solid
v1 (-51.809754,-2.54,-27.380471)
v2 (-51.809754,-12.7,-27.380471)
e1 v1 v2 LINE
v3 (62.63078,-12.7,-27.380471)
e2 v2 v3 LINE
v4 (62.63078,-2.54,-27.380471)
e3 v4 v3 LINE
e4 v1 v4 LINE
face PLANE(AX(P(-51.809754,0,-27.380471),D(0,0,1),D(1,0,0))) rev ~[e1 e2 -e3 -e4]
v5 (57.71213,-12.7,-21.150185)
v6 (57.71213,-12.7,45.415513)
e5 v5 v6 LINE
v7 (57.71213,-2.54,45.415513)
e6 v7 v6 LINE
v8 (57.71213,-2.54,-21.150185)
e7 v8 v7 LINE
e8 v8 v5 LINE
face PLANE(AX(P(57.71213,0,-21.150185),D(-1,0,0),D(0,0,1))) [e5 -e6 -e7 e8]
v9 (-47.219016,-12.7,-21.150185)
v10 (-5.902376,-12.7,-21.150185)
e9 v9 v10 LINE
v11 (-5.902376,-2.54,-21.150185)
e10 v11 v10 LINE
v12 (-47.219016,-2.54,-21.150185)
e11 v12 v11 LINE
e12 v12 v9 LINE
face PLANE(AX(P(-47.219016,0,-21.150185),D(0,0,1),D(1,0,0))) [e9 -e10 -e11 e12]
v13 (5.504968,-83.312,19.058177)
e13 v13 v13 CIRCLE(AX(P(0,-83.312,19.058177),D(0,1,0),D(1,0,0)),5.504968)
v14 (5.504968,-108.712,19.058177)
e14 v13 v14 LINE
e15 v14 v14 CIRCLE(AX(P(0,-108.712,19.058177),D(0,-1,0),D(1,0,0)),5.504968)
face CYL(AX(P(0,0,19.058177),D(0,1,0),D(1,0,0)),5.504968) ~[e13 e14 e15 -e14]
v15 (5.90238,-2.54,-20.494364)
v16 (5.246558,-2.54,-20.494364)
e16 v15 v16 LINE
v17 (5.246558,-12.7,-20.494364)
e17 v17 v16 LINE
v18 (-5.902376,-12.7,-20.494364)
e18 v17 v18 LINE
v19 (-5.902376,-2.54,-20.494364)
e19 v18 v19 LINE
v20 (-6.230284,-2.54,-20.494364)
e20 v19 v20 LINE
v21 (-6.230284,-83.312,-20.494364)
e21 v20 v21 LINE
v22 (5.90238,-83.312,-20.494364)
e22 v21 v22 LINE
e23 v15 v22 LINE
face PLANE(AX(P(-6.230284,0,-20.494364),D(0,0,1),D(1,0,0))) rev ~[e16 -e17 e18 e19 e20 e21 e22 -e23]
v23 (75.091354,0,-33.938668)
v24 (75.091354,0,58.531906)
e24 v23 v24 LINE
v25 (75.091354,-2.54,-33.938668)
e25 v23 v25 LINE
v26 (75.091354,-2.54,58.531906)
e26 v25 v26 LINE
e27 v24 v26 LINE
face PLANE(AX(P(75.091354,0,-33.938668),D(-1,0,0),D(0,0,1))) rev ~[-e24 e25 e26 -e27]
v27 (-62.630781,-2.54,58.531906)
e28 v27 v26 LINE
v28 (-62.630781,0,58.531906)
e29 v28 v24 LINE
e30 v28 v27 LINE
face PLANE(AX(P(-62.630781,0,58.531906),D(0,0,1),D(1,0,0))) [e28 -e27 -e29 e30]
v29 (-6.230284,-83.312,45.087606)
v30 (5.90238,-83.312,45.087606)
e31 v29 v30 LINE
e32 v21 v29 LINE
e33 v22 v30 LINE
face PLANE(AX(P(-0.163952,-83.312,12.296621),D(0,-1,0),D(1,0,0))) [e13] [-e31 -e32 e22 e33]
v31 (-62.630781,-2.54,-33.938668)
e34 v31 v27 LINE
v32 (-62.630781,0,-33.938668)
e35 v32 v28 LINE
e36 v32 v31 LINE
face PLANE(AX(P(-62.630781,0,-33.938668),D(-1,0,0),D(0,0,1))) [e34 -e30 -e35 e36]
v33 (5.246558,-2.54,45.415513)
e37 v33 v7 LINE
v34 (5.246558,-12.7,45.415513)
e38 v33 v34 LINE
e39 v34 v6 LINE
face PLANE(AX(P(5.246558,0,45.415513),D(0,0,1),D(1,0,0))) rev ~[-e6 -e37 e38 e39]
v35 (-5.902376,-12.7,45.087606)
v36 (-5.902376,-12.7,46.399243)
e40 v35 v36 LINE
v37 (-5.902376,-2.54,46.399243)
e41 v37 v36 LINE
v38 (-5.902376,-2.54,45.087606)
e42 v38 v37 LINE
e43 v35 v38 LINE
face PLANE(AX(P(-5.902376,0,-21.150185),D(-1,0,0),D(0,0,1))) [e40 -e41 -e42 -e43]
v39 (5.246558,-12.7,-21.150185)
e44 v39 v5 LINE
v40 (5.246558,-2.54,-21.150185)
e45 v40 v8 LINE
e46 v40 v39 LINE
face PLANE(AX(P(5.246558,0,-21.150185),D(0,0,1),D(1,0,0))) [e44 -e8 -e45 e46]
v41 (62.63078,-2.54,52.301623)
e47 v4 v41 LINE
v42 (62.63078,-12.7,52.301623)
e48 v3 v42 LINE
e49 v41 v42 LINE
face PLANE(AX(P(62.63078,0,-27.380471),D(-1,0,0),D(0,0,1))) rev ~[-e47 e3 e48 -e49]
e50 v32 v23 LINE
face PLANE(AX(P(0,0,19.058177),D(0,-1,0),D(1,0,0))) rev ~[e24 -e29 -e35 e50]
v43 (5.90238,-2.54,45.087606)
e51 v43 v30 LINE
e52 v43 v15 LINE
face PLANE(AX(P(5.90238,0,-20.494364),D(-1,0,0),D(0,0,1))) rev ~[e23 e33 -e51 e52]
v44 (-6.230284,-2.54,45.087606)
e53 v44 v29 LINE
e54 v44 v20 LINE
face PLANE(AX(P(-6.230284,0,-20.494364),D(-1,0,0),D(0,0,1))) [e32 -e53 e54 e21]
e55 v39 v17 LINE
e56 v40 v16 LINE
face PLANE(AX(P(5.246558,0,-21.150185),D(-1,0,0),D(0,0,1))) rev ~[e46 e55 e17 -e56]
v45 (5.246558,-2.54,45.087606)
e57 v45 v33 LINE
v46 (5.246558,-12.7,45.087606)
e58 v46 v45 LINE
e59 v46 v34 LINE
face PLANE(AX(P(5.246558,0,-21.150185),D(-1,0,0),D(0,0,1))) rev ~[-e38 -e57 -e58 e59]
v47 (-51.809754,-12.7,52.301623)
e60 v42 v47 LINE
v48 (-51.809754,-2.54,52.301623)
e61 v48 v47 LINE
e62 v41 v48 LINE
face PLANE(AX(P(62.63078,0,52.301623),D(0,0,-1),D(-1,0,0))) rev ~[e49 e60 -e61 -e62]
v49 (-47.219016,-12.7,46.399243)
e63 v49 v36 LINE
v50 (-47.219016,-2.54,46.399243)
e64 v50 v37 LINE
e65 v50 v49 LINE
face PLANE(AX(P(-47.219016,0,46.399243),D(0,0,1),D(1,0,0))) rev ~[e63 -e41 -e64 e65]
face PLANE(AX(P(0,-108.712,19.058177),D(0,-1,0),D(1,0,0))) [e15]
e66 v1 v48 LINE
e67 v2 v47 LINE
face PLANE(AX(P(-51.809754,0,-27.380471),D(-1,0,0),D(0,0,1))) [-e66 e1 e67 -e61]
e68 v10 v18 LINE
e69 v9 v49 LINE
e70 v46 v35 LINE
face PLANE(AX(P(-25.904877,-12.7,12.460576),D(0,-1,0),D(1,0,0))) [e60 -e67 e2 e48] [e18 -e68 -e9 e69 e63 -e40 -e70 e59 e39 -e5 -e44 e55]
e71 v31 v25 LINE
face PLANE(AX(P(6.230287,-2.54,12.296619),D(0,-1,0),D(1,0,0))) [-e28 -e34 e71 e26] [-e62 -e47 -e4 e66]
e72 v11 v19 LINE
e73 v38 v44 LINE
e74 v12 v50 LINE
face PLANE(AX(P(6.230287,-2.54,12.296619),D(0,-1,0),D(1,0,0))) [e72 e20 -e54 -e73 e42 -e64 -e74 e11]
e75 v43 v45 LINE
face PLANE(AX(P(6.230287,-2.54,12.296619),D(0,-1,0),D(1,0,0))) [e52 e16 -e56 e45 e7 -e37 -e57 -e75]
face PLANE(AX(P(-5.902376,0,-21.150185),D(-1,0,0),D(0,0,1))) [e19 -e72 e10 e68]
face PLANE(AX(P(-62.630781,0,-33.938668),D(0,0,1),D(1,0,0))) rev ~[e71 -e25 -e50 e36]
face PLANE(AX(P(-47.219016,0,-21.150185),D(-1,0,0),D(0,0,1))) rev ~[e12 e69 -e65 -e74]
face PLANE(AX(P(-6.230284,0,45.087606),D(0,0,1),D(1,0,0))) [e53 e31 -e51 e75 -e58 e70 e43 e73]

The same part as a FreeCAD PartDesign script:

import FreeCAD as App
import Part
import Sketcher

V = App.Vector
Q = App.Units.Quantity

doc = App.newDocument("Part")
body = doc.addObject("PartDesign::Body", "Body")

# Sketch on XZ plane
sketch1 = doc.addObject("Sketcher::SketchObject", "Sketch")
body.addObject(sketch1)
sketch1.AttachmentSupport = (doc.XZ_Plane, [""])
sketch1.MapMode = "FlatFace"
sketch1.addGeometry(Part.LineSegment(V(-52, 52, 0), V(-52, -27, 0)), False)
sketch1.addGeometry(Part.LineSegment(V(-52, -27, 0), V(63, -27, 0)), False)
sketch1.addGeometry(Part.LineSegment(V(63, -27, 0), V(63, 52, 0)), False)
sketch1.addGeometry(Part.LineSegment(V(63, 52, 0), V(-52, 52, 0)), False)
sketch1.addGeometry(Part.LineSegment(V(58, -21, 0), V(5, -21, 0)), False)
sketch1.addGeometry(Part.LineSegment(V(5, -21, 0), V(5, 45, 0)), False)
sketch1.addGeometry(Part.LineSegment(V(5, 45, 0), V(58, 45, 0)), False)
sketch1.addGeometry(Part.LineSegment(V(58, 45, 0), V(58, -21, 0)), False)
sketch1.addGeometry(Part.LineSegment(V(-6, -21, 0), V(-47, -21, 0)), False)
sketch1.addGeometry(Part.LineSegment(V(-47, -21, 0), V(-47, 46, 0)), False)
sketch1.addGeometry(Part.LineSegment(V(-47, 46, 0), V(-6, 46, 0)), False)
sketch1.addGeometry(Part.LineSegment(V(-6, 46, 0), V(-6, -21, 0)), False)
sketch1.addConstraint(Sketcher.Constraint("Coincident", 0, 2, 1, 1))
sketch1.addConstraint(Sketcher.Constraint("Coincident", 1, 2, 2, 1))
sketch1.addConstraint(Sketcher.Constraint("Coincident", 2, 2, 3, 1))
sketch1.addConstraint(Sketcher.Constraint("Coincident", 3, 2, 0, 1))
sketch1.addConstraint(Sketcher.Constraint("Coincident", 4, 2, 5, 1))
sketch1.addConstraint(Sketcher.Constraint("Coincident", 5, 2, 6, 1))
sketch1.addConstraint(Sketcher.Constraint("Coincident", 6, 2, 7, 1))
sketch1.addConstraint(Sketcher.Constraint("Coincident", 7, 2, 4, 1))
sketch1.addConstraint(Sketcher.Constraint("Coincident", 8, 2, 9, 1))
sketch1.addConstraint(Sketcher.Constraint("Coincident", 9, 2, 10, 1))
sketch1.addConstraint(Sketcher.Constraint("Coincident", 10, 2, 11, 1))
sketch1.addConstraint(Sketcher.Constraint("Coincident", 11, 2, 8, 1))
sketch1.addConstraint(Sketcher.Constraint("Vertical", 0))
sketch1.addConstraint(Sketcher.Constraint("Horizontal", 1))
sketch1.addConstraint(Sketcher.Constraint("Vertical", 2))
sketch1.addConstraint(Sketcher.Constraint("Horizontal", 3))
sketch1.addConstraint(Sketcher.Constraint("Horizontal", 4))
sketch1.addConstraint(Sketcher.Constraint("Vertical", 5))
sketch1.addConstraint(Sketcher.Constraint("Horizontal", 6))
sketch1.addConstraint(Sketcher.Constraint("Vertical", 7))
sketch1.addConstraint(Sketcher.Constraint("Horizontal", 8))
sketch1.addConstraint(Sketcher.Constraint("Vertical", 9))
sketch1.addConstraint(Sketcher.Constraint("Horizontal", 10))
sketch1.addConstraint(Sketcher.Constraint("Vertical", 11))
sketch1.addConstraint(Sketcher.Constraint("Horizontal", 7, 2, 8, 2))
sketch1.addConstraint(Sketcher.Constraint("DistanceX", 4, 2, 4, 1, 52.465571))
sketch1.addConstraint(Sketcher.Constraint("DistanceX", 8, 2, 8, 1, 41.31664))
sketch1.addConstraint(Sketcher.Constraint("DistanceY", 9, 1, 9, 2, 67.549428))
sketch1.addConstraint(Sketcher.Constraint("DistanceX", 1, 1, 1, 2, 114.440534))
sketch1.addConstraint(Sketcher.Constraint("DistanceY", 0, 2, 0, 1, 79.682095))
sketch1.addConstraint(Sketcher.Constraint("DistanceY", 5, 1, 5, 2, 66.565698))
sketch1.addConstraint(Sketcher.Constraint("DistanceY", 0, 2, -1, 1, 27.380471))
sketch1.addConstraint(Sketcher.Constraint("DistanceX", -1, 1, 1, 2, 62.63078))
sketch1.addConstraint(Sketcher.Constraint("DistanceX", -1, 1, 4, 2, 5.246558))
sketch1.addConstraint(Sketcher.Constraint("DistanceY", 4, 2, 3, 2, 73.451808))
sketch1.addConstraint(Sketcher.Constraint("DistanceX", 8, 2, -1, 1, 47.219016))
pad1 = doc.addObject("PartDesign::Pad", "Pad")
body.addObject(pad1)
pad1.Profile = sketch1
pad1.Length = Q("0.5 in")

# Sketch on XZ plane
sketch2 = doc.addObject("Sketcher::SketchObject", "Sketch001")
body.addObject(sketch2)
sketch2.AttachmentSupport = (doc.XZ_Plane, [""])
sketch2.MapMode = "FlatFace"
sketch2.addGeometry(Part.LineSegment(V(-63, 59, 0), V(-63, -34, 0)), False)
sketch2.addGeometry(Part.LineSegment(V(-63, -34, 0), V(75, -34, 0)), False)
sketch2.addGeometry(Part.LineSegment(V(75, -34, 0), V(75, 59, 0)), False)
sketch2.addGeometry(Part.LineSegment(V(75, 59, 0), V(-63, 59, 0)), False)
sketch2.addConstraint(Sketcher.Constraint("Coincident", 0, 2, 1, 1))
sketch2.addConstraint(Sketcher.Constraint("Coincident", 1, 2, 2, 1))
sketch2.addConstraint(Sketcher.Constraint("Coincident", 2, 2, 3, 1))
sketch2.addConstraint(Sketcher.Constraint("Coincident", 3, 2, 0, 1))
sketch2.addConstraint(Sketcher.Constraint("Vertical", 0))
sketch2.addConstraint(Sketcher.Constraint("Horizontal", 1))
sketch2.addConstraint(Sketcher.Constraint("Vertical", 2))
sketch2.addConstraint(Sketcher.Constraint("Horizontal", 3))
sketch2.addConstraint(Sketcher.Constraint("DistanceX", 1, 1, 1, 2, 137.722135))
sketch2.addConstraint(Sketcher.Constraint("DistanceY", 0, 2, 0, 1, 92.470575))
sketch2.addConstraint(Sketcher.Constraint("DistanceX", 0, 2, -1, 1, 62.630781))
sketch2.addConstraint(Sketcher.Constraint("DistanceY", 0, 2, -1, 1, 33.938668))
pad2 = doc.addObject("PartDesign::Pad", "Pad001")
body.addObject(pad2)
pad2.Profile = sketch2
pad2.Length = Q("0.1 in")

# Sketch on XZ plane
sketch3 = doc.addObject("Sketcher::SketchObject", "Sketch002")
body.addObject(sketch3)
sketch3.AttachmentSupport = (doc.XZ_Plane, [""])
sketch3.MapMode = "FlatFace"
sketch3.addGeometry(Part.LineSegment(V(-6, 45, 0), V(-6, -20, 0)), False)
sketch3.addGeometry(Part.LineSegment(V(-6, -20, 0), V(6, -20, 0)), False)
sketch3.addGeometry(Part.LineSegment(V(6, -20, 0), V(6, 45, 0)), False)
sketch3.addGeometry(Part.LineSegment(V(6, 45, 0), V(-6, 45, 0)), False)
sketch3.addConstraint(Sketcher.Constraint("Coincident", 0, 2, 1, 1))
sketch3.addConstraint(Sketcher.Constraint("Coincident", 1, 2, 2, 1))
sketch3.addConstraint(Sketcher.Constraint("Coincident", 2, 2, 3, 1))
sketch3.addConstraint(Sketcher.Constraint("Coincident", 3, 2, 0, 1))
sketch3.addConstraint(Sketcher.Constraint("Vertical", 0))
sketch3.addConstraint(Sketcher.Constraint("Horizontal", 1))
sketch3.addConstraint(Sketcher.Constraint("Vertical", 2))
sketch3.addConstraint(Sketcher.Constraint("Horizontal", 3))
sketch3.addConstraint(Sketcher.Constraint("DistanceY", 0, 2, 0, 1, 65.58197))
sketch3.addConstraint(Sketcher.Constraint("DistanceX", 1, 1, 1, 2, 12.132665))
sketch3.addConstraint(Sketcher.Constraint("DistanceX", -1, 1, 1, 2, 5.90238))
sketch3.addConstraint(Sketcher.Constraint("DistanceY", 0, 2, -1, 1, 20.494364))
pad3 = doc.addObject("PartDesign::Pad", "Pad002")
body.addObject(pad3)
pad3.Profile = sketch3
pad3.Length = Q("3.28 in")

# Sketch on XZ plane
sketch4 = doc.addObject("Sketcher::SketchObject", "Sketch003")
body.addObject(sketch4)
sketch4.AttachmentSupport = (doc.XZ_Plane, [""])
sketch4.MapMode = "FlatFace"
sketch4.addGeometry(Part.Circle(V(0, 19, 0), V(0, 0, 1), 6), False)
sketch4.addConstraint(Sketcher.Constraint("PointOnObject", 0, 3, -2))
sketch4.addConstraint(Sketcher.Constraint("Diameter", 0, 11.009936))
sketch4.addConstraint(Sketcher.Constraint("DistanceY", -1, 1, 0, 3, 19.058177))
pad4 = doc.addObject("PartDesign::Pad", "Pad003")
body.addObject(pad4)
pad4.Profile = sketch4
pad4.Length = Q("4.28 in")

doc.recompute()
